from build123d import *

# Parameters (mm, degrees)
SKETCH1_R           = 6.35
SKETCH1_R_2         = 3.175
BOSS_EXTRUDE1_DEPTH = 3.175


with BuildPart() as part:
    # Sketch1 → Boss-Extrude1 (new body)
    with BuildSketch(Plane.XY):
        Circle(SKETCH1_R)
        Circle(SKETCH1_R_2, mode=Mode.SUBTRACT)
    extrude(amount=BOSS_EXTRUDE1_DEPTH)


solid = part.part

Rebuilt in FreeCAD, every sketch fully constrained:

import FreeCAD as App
import Part
import Sketcher
Q = App.Units.Quantity

doc = App.newDocument("Part")
body = doc.addObject("PartDesign::Body", "Body")

# Sketch on XY plane
sketch1 = body.newObject("Sketcher::SketchObject", "Sketch")
sketch1.AttachmentSupport = (doc.getObject("XY_Plane"), [""])
sketch1.MapMode = "FlatFace"
sketch1.addGeometry([
    Part.Circle(App.Vector(0, 0, 0), App.Vector(0, 0, 1), 6.3),
    Part.Circle(App.Vector(0, 0, 0), App.Vector(0, 0, 1), 3.2),
], False)
sketch1.addConstraint([
    Sketcher.Constraint("Coincident", 0, 3, -1, 1),
    Sketcher.Constraint("Coincident", 1, 3, -1, 1),
    Sketcher.Constraint("Diameter", 0, Q("0.5 in")),
    Sketcher.Constraint("Diameter", 1, Q("0.25 in")),
])
pad1 = body.newObject("PartDesign::Pad", "Pad")
pad1.Profile = sketch1
pad1.Length = Q("0.125 in")

doc.recompute()
